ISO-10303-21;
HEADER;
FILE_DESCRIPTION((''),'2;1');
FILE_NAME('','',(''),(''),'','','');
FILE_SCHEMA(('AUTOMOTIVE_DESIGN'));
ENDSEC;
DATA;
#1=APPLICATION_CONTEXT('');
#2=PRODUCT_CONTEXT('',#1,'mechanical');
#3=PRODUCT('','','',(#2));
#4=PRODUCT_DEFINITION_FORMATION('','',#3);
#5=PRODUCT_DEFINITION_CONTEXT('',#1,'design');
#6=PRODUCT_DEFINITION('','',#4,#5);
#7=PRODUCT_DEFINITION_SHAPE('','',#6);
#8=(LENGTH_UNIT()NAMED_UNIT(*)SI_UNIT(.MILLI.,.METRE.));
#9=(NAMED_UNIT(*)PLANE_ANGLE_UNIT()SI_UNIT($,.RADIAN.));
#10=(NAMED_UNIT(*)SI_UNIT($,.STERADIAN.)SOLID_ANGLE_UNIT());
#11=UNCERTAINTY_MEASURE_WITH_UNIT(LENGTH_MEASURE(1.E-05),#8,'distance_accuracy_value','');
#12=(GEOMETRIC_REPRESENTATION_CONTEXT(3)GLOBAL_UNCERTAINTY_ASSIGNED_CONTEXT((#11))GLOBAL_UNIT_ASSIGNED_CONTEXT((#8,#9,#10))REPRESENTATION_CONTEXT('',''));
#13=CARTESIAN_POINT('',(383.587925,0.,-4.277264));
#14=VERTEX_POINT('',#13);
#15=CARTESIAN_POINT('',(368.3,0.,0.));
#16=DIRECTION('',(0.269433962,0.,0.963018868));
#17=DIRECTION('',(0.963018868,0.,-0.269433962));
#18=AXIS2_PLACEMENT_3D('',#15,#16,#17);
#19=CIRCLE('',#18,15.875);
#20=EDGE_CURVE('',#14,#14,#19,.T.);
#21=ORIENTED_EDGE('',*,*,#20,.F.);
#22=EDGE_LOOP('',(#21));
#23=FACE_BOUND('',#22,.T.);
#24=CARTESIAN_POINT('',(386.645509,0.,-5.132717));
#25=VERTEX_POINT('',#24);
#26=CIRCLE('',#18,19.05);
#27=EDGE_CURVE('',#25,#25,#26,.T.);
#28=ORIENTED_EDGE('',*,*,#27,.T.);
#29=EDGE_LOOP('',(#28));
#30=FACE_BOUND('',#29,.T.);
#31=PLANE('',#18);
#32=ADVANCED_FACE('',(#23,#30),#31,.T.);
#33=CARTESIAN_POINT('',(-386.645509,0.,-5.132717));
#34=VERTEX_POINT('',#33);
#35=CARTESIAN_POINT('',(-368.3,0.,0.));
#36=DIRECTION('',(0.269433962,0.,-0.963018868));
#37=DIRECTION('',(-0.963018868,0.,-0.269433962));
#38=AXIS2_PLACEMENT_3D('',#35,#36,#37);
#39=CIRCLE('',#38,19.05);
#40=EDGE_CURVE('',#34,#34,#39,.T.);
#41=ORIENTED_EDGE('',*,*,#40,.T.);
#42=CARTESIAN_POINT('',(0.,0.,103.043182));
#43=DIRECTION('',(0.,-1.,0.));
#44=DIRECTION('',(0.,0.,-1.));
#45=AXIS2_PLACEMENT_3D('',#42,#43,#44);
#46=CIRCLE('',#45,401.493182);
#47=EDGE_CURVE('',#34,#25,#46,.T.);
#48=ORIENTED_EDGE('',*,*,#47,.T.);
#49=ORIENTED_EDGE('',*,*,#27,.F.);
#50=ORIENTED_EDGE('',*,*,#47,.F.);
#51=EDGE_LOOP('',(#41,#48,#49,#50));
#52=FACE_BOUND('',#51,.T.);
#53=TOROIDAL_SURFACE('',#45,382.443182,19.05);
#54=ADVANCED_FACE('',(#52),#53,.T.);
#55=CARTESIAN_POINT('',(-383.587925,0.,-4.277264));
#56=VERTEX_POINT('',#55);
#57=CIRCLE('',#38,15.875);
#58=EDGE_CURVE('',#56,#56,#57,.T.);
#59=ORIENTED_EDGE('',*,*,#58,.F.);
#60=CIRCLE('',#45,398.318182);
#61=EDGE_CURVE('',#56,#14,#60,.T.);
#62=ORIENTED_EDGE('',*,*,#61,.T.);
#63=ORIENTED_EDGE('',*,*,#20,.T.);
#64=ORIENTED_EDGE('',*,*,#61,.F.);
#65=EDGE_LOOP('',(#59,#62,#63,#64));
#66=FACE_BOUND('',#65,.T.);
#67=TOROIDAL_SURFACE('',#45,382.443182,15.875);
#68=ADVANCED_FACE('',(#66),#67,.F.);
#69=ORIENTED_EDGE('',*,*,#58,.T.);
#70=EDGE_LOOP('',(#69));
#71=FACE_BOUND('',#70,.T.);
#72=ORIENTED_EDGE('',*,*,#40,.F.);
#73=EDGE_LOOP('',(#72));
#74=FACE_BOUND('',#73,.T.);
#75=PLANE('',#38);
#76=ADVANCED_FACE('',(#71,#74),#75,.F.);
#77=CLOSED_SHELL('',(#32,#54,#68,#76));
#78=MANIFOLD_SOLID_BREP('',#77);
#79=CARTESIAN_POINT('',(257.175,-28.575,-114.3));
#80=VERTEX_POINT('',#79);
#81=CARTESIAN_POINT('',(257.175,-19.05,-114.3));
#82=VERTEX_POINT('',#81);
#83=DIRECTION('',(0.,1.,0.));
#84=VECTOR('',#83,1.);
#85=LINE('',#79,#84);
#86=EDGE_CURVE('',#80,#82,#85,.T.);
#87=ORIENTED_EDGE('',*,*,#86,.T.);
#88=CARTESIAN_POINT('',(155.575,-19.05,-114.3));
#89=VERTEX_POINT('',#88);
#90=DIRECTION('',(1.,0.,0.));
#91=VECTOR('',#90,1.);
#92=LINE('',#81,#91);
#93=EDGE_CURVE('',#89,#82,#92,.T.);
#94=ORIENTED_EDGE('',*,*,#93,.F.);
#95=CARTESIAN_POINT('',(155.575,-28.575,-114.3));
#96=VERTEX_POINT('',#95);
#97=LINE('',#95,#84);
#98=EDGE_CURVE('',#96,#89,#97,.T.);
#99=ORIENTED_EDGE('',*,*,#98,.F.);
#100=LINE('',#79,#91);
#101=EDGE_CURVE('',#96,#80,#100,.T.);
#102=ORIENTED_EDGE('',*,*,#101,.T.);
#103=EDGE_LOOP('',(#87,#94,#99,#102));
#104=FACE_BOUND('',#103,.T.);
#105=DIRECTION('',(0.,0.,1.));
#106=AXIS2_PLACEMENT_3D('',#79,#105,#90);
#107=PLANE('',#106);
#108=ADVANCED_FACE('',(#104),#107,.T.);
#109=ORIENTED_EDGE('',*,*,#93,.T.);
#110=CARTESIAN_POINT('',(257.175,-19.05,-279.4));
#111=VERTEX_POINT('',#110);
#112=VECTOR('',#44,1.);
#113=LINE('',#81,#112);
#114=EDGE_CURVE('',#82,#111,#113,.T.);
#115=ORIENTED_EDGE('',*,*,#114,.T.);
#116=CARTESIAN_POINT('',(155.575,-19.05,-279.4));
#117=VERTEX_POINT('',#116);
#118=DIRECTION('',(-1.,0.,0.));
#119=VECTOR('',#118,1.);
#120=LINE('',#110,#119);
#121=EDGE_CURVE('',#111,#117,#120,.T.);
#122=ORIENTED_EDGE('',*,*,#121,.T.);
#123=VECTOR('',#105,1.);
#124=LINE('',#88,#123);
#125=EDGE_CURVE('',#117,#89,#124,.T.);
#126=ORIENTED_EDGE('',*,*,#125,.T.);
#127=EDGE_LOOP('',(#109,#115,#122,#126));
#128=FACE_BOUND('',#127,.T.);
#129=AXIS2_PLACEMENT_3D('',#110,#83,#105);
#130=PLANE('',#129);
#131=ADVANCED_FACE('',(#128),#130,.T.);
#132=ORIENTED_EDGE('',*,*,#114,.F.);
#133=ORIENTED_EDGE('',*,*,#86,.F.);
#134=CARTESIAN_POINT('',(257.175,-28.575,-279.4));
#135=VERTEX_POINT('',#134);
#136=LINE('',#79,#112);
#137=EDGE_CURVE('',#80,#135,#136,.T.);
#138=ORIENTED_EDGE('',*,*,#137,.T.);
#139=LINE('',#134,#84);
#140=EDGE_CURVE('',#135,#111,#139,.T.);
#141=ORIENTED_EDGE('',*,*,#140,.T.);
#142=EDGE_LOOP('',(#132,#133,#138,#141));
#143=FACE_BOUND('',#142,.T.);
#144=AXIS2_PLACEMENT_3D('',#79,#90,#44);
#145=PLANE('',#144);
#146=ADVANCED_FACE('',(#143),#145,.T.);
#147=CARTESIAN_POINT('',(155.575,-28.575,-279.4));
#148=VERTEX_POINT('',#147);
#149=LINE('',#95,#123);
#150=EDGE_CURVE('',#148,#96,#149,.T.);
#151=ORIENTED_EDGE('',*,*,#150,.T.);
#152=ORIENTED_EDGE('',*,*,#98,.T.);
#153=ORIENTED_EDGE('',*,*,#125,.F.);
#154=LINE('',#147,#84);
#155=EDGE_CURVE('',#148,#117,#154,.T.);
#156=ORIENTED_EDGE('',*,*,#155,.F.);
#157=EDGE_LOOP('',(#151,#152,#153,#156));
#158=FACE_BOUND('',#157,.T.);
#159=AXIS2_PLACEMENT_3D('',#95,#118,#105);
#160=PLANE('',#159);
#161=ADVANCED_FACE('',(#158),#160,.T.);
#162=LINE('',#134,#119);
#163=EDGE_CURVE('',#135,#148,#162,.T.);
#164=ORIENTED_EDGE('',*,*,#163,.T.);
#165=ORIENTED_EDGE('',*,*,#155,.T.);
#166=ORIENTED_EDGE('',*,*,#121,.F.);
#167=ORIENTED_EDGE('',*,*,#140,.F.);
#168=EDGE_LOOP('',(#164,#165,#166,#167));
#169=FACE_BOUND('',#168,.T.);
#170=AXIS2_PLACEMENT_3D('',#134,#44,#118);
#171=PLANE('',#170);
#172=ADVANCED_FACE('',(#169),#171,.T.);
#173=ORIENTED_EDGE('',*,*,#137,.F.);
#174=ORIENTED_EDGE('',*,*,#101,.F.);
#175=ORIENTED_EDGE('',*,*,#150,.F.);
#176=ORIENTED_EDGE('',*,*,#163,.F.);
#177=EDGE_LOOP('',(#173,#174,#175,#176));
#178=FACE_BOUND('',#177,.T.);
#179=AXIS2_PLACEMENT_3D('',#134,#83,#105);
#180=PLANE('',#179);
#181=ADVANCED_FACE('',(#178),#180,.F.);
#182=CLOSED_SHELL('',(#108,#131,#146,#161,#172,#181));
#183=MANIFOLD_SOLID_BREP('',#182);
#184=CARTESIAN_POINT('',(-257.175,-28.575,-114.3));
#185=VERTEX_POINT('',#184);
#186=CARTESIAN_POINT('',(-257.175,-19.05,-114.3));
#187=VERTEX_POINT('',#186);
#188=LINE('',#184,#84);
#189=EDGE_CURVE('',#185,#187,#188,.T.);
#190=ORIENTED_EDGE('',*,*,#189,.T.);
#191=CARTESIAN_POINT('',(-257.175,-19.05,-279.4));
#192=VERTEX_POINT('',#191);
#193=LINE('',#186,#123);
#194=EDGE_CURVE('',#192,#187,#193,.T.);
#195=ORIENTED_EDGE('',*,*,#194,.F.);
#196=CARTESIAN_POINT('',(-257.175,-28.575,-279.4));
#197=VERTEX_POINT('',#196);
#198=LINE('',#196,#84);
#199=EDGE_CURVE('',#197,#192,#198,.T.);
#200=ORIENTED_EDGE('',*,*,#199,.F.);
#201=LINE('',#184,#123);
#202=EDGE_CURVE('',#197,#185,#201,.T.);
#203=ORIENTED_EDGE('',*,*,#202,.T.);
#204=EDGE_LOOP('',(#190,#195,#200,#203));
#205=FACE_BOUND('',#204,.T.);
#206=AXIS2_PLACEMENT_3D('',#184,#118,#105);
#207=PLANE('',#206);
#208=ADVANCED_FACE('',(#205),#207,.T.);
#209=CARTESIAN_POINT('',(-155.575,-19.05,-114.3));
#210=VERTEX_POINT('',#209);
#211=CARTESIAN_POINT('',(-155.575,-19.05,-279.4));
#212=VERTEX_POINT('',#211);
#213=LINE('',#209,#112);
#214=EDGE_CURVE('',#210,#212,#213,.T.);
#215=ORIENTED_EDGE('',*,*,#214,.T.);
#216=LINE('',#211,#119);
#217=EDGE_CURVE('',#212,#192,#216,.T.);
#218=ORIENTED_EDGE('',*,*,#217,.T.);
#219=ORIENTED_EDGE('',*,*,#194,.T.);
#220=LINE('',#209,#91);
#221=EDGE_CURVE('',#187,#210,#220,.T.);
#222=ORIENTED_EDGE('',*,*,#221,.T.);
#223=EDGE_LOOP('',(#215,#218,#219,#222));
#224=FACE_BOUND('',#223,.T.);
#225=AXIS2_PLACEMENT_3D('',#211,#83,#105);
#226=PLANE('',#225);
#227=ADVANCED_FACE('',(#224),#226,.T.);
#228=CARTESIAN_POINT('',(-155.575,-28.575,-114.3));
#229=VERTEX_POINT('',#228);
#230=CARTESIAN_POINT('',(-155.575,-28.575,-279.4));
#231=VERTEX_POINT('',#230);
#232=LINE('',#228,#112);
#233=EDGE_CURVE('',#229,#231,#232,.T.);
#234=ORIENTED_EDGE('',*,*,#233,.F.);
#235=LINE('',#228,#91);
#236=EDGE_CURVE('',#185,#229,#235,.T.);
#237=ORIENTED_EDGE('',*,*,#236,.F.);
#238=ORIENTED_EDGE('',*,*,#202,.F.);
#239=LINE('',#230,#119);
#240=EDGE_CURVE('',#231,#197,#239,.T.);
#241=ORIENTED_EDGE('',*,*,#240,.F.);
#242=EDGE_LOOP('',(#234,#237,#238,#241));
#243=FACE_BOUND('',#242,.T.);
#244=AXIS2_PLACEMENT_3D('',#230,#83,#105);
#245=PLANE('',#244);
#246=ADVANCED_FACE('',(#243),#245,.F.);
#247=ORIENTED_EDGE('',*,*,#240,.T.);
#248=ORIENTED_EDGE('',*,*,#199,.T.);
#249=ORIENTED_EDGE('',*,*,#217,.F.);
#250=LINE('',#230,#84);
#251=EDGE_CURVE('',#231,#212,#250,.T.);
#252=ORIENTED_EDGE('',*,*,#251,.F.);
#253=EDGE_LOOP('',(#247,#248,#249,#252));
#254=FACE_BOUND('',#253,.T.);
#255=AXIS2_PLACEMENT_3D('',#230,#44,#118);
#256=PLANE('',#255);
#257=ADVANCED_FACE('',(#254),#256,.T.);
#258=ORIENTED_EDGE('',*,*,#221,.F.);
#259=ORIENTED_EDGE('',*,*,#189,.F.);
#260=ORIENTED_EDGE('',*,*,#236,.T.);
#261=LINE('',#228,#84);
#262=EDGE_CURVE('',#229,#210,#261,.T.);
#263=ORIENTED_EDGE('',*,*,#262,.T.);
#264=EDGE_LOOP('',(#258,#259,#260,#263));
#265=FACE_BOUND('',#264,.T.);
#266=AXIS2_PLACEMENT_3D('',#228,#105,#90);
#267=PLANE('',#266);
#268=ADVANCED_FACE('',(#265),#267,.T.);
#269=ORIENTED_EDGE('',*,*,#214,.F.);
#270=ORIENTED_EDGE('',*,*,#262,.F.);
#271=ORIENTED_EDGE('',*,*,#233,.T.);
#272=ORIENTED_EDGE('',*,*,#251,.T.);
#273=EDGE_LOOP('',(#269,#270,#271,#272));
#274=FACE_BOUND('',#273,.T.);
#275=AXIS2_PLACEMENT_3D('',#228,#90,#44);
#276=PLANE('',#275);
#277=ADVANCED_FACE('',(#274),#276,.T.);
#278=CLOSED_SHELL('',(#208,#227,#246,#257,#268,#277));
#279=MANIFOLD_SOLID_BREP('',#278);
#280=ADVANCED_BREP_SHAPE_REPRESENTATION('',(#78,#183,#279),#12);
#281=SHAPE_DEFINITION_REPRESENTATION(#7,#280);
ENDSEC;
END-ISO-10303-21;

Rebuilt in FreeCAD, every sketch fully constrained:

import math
import FreeCAD as App
import Part
import Sketcher

V = App.Vector
Q = App.Units.Quantity


def add_polygon(sketch, points):
    """Adds a closed chain of lines whose ends are joined by coincident constraints."""
    first, n = sketch.GeometryCount, len(points)
    for a, b in zip(points, points[1:] + points[:1]):
        sketch.addGeometry(Part.LineSegment(App.Vector(*a, 0), App.Vector(*b, 0)), False)
    for i in range(n):
        sketch.addConstraint(Sketcher.Constraint("Coincident", first + i, 2, first + (i + 1) % n, 1))

doc = App.newDocument("Part")
body = doc.addObject("PartDesign::Body", "Body")

# Sketch on an angled plane
sketch1 = doc.addObject("Sketcher::SketchObject", "Sketch")
body.addObject(sketch1)
sketch1.Placement = App.Placement(V(368.3, 0, 0), App.Rotation(V(0.963018868, 0, -0.269433962), V(0, 1, 0), V(0.269433962, 0, 0.963018868), "ZXY"))
sketch1.addGeometry([
    Part.Circle(V(0, 0, 0), V(0, 0, 1), 19),
    Part.Circle(V(0, 0, 0), V(0, 0, 1), 16),
], False)
sketch1.addConstraint([
    Sketcher.Constraint("Coincident", 0, 3, -1, 1),
    Sketcher.Constraint("Coincident", 1, 3, -1, 1),
    Sketcher.Constraint("Diameter", 0, Q("1.5 in")),
    Sketcher.Constraint("Diameter", 1, Q("1.25 in")),
])

# Sketch on XZ plane
sketch2 = doc.addObject("Sketcher::SketchObject", "Sketch001")
body.addObject(sketch2)
sketch2.AttachmentSupport = (doc.XZ_Plane, [""])
sketch2.MapMode = "FlatFace"
sketch2.addGeometry(Part.ArcOfCircle(Part.Circle(V(0, 103, 0), V(0, 0, 1), 382), math.radians(-164), math.radians(-16)), False)
sketch2.addConstraint([
    Sketcher.Constraint("Symmetric", 0, 1, 0, 2, -1, 1),
    Sketcher.Constraint("PointOnObject", 0, 3, -2),
    Sketcher.Constraint("DistanceX", 0, 1, 0, 2, Q("29 in")),
    Sketcher.Constraint("Radius", 0, 382.443182),
])
doc.recompute()

additivepipe = doc.addObject("PartDesign::AdditivePipe", "AdditivePipe")
body.addObject(additivepipe)
additivepipe.Profile = sketch1
additivepipe.Spine = (sketch2, ["Edge1"])
body2 = doc.addObject("PartDesign::Body", "Body001")

# Sketch on XZ plane
sketch3 = doc.addObject("Sketcher::SketchObject", "Sketch002")
body2.addObject(sketch3)
sketch3.AttachmentSupport = (doc.getObject("XZ_Plane001"), [""])
sketch3.MapMode = "FlatFace"
sketch3.AttachmentOffset = App.Placement(V(0, 0, 0.75 * 25.4), App.Rotation())
add_polygon(sketch3, [(257, -114), (257, -279), (156, -279), (156, -114)])  # lines 0-3
sketch3.addConstraint([
    Sketcher.Constraint("Vertical", 0),
    Sketcher.Constraint("Horizontal", 1),
    Sketcher.Constraint("Vertical", 2),
    Sketcher.Constraint("Horizontal", 3),
    Sketcher.Constraint("DistanceX", 1, 2, 1, 1, Q("4 in")),
    Sketcher.Constraint("DistanceY", 0, 2, 0, 1, Q("6.5 in")),
    Sketcher.Constraint("DistanceY", 0, 2, -1, 1, Q("11 in")),
    Sketcher.Constraint("DistanceX", -1, 1, 0, 2, Q("10.125 in")),
])
pad1 = doc.addObject("PartDesign::Pad", "Pad")
body2.addObject(pad1)
pad1.Profile = sketch3
pad1.Length = Q("0.375 in")
body3 = doc.addObject("PartDesign::Body", "Body002")

# Sketch on XZ plane
sketch4 = doc.addObject("Sketcher::SketchObject", "Sketch003")
body3.addObject(sketch4)
sketch4.AttachmentSupport = (doc.getObject("XZ_Plane002"), [""])
sketch4.MapMode = "FlatFace"
sketch4.AttachmentOffset = App.Placement(V(0, 0, 0.75 * 25.4), App.Rotation())
add_polygon(sketch4, [(-156, -114), (-156, -279), (-257, -279), (-257, -114)])  # lines 0-3
sketch4.addConstraint([
    Sketcher.Constraint("Vertical", 0),
    Sketcher.Constraint("Horizontal", 1),
    Sketcher.Constraint("Vertical", 2),
    Sketcher.Constraint("Horizontal", 3),
    Sketcher.Constraint("DistanceX", 1, 2, 1, 1, Q("4 in")),
    Sketcher.Constraint("DistanceY", 0, 2, 0, 1, Q("6.5 in")),
    Sketcher.Constraint("DistanceY", 0, 2, -1, 1, Q("11 in")),
    Sketcher.Constraint("DistanceX", 0, 2, -1, 1, Q("6.125 in")),
])
pad2 = doc.addObject("PartDesign::Pad", "Pad001")
body3.addObject(pad2)
pad2.Profile = sketch4
pad2.Length = Q("0.375 in")

doc.recompute()
